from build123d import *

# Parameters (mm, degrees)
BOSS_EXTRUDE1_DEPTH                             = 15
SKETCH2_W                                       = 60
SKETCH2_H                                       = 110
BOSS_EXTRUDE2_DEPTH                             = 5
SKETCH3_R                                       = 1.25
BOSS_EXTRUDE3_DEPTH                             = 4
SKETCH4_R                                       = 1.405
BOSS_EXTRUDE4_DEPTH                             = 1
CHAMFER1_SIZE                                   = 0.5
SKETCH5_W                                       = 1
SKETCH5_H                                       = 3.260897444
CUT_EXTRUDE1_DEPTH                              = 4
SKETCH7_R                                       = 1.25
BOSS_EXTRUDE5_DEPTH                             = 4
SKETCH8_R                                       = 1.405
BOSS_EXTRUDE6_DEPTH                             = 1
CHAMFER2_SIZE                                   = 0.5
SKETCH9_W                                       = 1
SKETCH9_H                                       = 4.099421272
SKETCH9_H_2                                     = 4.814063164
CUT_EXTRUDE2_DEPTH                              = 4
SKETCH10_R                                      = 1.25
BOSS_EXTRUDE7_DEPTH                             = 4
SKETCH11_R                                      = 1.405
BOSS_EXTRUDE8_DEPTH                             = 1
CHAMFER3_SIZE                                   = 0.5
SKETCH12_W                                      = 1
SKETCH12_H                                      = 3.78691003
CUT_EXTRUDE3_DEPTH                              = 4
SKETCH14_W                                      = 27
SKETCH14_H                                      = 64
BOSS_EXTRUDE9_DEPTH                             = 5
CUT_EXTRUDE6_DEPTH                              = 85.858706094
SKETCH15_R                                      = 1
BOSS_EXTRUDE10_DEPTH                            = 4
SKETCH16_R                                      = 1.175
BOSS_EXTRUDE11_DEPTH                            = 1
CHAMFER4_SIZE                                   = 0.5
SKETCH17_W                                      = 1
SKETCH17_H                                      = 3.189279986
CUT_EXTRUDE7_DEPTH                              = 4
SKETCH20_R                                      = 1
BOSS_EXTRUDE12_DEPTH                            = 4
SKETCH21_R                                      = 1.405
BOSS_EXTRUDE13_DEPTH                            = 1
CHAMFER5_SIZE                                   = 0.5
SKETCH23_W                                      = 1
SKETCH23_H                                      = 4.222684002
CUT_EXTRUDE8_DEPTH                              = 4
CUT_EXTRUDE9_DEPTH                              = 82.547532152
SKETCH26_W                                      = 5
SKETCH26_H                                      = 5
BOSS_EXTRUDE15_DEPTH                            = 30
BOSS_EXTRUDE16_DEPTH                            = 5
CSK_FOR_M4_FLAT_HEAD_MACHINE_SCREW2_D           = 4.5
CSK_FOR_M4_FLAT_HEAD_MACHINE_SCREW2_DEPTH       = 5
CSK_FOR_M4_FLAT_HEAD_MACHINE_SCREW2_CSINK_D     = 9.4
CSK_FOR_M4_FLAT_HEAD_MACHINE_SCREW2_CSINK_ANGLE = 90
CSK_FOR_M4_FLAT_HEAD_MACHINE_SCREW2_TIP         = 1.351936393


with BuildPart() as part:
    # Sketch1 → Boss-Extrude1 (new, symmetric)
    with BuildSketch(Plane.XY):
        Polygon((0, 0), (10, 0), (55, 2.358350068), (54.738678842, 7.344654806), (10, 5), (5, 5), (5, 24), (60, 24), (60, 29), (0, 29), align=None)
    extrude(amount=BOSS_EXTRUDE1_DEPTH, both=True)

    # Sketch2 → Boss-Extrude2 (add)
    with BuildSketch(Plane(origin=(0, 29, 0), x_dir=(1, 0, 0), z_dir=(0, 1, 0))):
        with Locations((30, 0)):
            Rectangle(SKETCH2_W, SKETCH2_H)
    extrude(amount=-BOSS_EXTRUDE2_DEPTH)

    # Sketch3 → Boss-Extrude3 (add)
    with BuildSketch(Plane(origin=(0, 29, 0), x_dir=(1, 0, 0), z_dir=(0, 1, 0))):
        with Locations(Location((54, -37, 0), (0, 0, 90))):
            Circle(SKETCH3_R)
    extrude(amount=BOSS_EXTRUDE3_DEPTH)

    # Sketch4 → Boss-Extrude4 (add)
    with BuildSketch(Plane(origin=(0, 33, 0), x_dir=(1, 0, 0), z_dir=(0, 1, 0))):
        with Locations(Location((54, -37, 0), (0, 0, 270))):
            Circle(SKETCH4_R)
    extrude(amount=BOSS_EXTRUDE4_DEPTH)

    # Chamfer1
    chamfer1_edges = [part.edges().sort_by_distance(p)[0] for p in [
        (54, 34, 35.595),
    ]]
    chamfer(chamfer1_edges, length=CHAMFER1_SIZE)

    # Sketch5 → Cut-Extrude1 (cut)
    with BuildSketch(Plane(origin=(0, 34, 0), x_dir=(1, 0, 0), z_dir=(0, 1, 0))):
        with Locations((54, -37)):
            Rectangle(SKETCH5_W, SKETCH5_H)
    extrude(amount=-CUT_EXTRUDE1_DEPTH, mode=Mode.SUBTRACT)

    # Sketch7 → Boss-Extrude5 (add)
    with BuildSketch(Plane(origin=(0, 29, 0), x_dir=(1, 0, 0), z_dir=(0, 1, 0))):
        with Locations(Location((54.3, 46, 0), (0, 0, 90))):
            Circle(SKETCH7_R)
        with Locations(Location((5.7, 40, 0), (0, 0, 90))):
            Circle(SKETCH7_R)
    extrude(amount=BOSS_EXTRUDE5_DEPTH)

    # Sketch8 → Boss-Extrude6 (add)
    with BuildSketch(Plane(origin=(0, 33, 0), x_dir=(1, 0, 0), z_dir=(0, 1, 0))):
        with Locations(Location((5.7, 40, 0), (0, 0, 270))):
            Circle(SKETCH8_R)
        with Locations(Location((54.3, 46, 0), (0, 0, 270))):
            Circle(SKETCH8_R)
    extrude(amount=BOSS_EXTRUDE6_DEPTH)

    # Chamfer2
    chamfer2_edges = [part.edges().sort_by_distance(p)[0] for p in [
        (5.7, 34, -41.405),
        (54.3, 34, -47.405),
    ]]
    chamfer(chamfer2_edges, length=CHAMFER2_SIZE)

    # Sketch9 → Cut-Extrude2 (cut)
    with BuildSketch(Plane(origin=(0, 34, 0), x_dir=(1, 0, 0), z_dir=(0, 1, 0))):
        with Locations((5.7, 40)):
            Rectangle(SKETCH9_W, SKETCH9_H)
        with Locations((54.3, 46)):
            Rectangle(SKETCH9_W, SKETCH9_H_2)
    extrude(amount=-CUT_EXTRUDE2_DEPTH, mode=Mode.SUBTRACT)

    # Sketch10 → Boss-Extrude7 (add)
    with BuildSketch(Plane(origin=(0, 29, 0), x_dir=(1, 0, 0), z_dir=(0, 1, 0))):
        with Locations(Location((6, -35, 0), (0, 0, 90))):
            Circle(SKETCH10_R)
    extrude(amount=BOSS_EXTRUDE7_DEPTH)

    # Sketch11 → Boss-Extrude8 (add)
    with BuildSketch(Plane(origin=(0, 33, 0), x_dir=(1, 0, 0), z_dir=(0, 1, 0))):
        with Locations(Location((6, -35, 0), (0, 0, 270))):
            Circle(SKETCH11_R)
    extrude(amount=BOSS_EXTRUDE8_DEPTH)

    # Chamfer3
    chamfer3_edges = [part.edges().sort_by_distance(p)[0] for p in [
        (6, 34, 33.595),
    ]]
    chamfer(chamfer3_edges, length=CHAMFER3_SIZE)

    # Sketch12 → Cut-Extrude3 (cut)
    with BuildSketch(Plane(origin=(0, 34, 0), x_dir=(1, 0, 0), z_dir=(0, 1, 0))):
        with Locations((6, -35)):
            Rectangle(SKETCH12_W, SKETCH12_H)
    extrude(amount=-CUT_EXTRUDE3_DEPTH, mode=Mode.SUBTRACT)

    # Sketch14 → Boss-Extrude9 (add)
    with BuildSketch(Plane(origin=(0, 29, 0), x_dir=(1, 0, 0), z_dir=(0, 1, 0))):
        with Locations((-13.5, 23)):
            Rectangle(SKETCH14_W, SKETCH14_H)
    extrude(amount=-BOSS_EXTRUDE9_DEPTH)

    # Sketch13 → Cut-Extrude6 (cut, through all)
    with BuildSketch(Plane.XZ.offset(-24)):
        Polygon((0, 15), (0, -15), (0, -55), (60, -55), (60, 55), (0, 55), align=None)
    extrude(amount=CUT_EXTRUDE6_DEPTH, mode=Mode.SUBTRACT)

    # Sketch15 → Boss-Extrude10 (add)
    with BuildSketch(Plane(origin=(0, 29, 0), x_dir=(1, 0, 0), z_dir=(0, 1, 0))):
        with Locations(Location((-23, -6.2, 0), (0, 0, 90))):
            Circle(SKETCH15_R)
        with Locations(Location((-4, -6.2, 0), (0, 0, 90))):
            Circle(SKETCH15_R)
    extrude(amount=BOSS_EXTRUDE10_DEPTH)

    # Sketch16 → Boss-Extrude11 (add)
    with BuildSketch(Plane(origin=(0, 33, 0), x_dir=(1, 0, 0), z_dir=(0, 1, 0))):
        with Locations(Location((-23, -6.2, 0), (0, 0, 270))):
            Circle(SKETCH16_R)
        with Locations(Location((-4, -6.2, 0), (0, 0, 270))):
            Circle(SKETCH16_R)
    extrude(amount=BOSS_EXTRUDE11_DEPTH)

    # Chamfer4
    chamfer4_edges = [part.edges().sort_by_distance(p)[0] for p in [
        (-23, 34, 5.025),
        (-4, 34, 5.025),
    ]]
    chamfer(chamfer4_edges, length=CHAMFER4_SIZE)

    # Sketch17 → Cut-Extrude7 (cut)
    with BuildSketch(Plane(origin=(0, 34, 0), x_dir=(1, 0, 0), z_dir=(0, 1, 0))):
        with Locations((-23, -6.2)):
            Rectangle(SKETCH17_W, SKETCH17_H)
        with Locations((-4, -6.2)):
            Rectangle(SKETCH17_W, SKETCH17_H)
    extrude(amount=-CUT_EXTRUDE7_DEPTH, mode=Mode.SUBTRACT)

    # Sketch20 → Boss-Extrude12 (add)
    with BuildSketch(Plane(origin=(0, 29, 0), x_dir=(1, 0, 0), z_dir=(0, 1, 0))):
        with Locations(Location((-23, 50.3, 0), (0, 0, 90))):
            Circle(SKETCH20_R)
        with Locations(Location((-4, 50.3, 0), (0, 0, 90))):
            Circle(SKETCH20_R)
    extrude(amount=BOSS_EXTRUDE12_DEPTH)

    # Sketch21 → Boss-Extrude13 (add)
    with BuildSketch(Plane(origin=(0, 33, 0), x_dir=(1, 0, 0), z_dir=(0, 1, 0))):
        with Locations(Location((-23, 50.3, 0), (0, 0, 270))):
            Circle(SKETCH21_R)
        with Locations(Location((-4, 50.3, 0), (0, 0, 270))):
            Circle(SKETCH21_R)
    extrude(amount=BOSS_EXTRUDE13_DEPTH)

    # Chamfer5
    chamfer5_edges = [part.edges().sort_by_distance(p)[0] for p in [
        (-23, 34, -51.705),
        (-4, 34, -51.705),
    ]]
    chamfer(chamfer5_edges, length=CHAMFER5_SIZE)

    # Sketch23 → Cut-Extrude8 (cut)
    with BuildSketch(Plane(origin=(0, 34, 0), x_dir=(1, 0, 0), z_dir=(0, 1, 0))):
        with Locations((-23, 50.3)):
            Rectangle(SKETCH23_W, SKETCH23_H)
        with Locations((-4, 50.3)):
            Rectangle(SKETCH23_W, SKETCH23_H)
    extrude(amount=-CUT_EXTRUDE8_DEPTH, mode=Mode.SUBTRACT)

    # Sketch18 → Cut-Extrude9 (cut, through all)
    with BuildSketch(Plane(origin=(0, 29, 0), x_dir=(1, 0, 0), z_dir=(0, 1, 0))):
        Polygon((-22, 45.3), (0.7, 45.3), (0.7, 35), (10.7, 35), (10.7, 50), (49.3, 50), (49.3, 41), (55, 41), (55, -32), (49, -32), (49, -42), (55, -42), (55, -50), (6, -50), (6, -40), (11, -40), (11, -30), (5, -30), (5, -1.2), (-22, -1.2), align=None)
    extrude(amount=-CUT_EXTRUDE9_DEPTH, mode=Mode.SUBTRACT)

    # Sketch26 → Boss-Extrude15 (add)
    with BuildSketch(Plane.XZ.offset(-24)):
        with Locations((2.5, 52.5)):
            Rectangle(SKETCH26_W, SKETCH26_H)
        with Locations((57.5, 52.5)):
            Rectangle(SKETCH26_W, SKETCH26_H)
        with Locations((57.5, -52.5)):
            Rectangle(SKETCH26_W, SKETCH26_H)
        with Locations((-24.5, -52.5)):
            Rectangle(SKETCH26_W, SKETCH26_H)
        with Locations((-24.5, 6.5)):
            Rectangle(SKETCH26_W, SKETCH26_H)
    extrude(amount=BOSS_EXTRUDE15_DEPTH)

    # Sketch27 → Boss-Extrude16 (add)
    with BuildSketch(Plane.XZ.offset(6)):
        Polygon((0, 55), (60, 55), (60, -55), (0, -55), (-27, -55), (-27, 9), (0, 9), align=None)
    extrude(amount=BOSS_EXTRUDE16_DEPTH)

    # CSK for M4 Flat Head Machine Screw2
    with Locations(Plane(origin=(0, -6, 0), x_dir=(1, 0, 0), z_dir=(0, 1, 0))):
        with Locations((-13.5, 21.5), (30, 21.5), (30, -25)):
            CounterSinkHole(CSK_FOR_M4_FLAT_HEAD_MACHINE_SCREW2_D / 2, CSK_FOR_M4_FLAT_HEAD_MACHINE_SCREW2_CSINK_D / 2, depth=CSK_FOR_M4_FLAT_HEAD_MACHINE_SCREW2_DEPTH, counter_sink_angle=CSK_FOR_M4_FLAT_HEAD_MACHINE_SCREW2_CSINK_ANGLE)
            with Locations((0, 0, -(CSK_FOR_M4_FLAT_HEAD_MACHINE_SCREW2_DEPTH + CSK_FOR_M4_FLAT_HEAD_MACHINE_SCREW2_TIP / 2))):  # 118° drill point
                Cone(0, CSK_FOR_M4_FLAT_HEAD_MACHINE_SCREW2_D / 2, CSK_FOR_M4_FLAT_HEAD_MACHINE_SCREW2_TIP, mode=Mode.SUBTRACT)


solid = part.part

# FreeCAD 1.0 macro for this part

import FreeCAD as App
import Part
import Sketcher
from FreeCAD import Vector
Q = App.Units.Quantity


def edges_at(feature, points):
    """Names of the edges that pass closest to the given points."""
    edges = feature.Shape.Edges
    near = lambda p: min(range(len(edges)), key=lambda i: edges[i].distToShape(Part.Vertex(*p))[0])
    return sorted({f"Edge{near(p) + 1}" for p in points})


def add_polygon(sketch, points):
    """Adds a closed chain of lines whose ends are joined by coincident constraints."""
    first, n = sketch.GeometryCount, len(points)
    for a, b in zip(points, points[1:] + points[:1]):
        sketch.addGeometry(Part.LineSegment(App.Vector(*a, 0), App.Vector(*b, 0)), False)
    for i in range(n):
        sketch.addConstraint(Sketcher.Constraint("Coincident", first + i, 2, first + (i + 1) % n, 1))

doc = App.newDocument("Part")
body = doc.addObject("PartDesign::Body", "Body")

# Sketch on XY plane
sketch1 = body.newObject("Sketcher::SketchObject", "Sketch")
sketch1.AttachmentSupport = (doc.getObject("XY_Plane"), [""])
sketch1.MapMode = "FlatFace"
add_polygon(sketch1, [(0, 0), (10, 0), (55, 2.35835), (54.738679, 7.344655), (10, 5), (5, 5), (5, 24), (60, 24), (60, 29), (0, 29)])  # lines 0-9
sketch1.addConstraint([
    Sketcher.Constraint("Horizontal", 0),
    Sketcher.Constraint("Horizontal", 4),
    Sketcher.Constraint("Vertical", 5),
    Sketcher.Constraint("Horizontal", 6),
    Sketcher.Constraint("Vertical", 7),
    Sketcher.Constraint("Horizontal", 8),
    Sketcher.Constraint("Vertical", 9),
    Sketcher.Constraint("Coincident", 9, 2, -1, 1),
    Sketcher.Constraint("Perpendicular", 1, 2),
    Sketcher.Constraint("Perpendicular", 2, 3),
    Sketcher.Constraint("Vertical", 0, 2, 3, 2),
    Sketcher.Constraint("Equal", 4, 7),
    Sketcher.Constraint("DistanceX", 0, 1, 0, 2, 10.0),
    Sketcher.Constraint("DistanceX", 4, 2, 4, 1, 5.0),
    Sketcher.Constraint("DistanceX", 6, 1, 6, 2, 55.0),
    Sketcher.Constraint("DistanceY", 5, 1, 5, 2, 19.0),
    Sketcher.Constraint("DistanceY", 9, 2, 9, 1, 29.0),
    Sketcher.Constraint("Angle", 1, Q("3 deg")),
    Sketcher.Constraint("DistanceX", -1, 1, 1, 2, 55.0),
])
pad1 = body.newObject("PartDesign::Pad", "Pad")
pad1.Profile = sketch1
pad1.Length = 30
pad1.Midplane = True

# Sketch on XZ plane
sketch2 = body.newObject("Sketcher::SketchObject", "Sketch001")
sketch2.AttachmentSupport = (doc.getObject("XZ_Plane"), [""])
sketch2.MapMode = "FlatFace"
sketch2.AttachmentOffset = App.Placement(Vector(0, 0, -29), App.Rotation())
add_polygon(sketch2, [(0, -55), (0, 55), (60, 55), (60, -55)])  # lines 0-3
sketch2.addConstraint([
    Sketcher.Constraint("Vertical", 0),
    Sketcher.Constraint("Horizontal", 1),
    Sketcher.Constraint("Vertical", 2),
    Sketcher.Constraint("Horizontal", 3),
    Sketcher.Constraint("Symmetric", 0, 2, 3, 2, -1, 1),
    Sketcher.Constraint("DistanceX", 1, 1, 1, 2, 60.0),
    Sketcher.Constraint("DistanceY", 0, 1, 0, 2, 110.0),
])
pad2 = body.newObject("PartDesign::Pad", "Pad001")
pad2.Profile = sketch2
pad2.Length = 5

# Sketch on XZ plane
sketch3 = body.newObject("Sketcher::SketchObject", "Sketch002")
sketch3.AttachmentSupport = (doc.getObject("XZ_Plane"), [""])
sketch3.MapMode = "FlatFace"
sketch3.AttachmentOffset = App.Placement(Vector(0, 0, -29), App.Rotation())
sketch3.addGeometry(Part.Circle(Vector(54, 37, 0), Vector(0, 0, 1), 1.25), False)
sketch3.addConstraint([
    Sketcher.Constraint("Diameter", 0, 2.5),
    Sketcher.Constraint("DistanceX", -1, 1, 0, 3, 54.0),
    Sketcher.Constraint("DistanceY", -1, 1, 0, 3, 37.0),
])
pad3 = body.newObject("PartDesign::Pad", "Pad002")
pad3.Profile = sketch3
pad3.Length = 4
pad3.Reversed = True

# Sketch on XZ plane
sketch4 = body.newObject("Sketcher::SketchObject", "Sketch003")
sketch4.AttachmentSupport = (doc.getObject("XZ_Plane"), [""])
sketch4.MapMode = "FlatFace"
sketch4.AttachmentOffset = App.Placement(Vector(0, 0, -33), App.Rotation())
sketch4.addGeometry(Part.Circle(Vector(54, 37, 0), Vector(0, 0, 1), 1.405), False)
sketch4.addConstraint([
    Sketcher.Constraint("Diameter", 0, 2.81),
    Sketcher.Constraint("DistanceX", -1, 1, 0, 3, 54.0),
    Sketcher.Constraint("DistanceY", -1, 1, 0, 3, 37.0),
])
pad4 = body.newObject("PartDesign::Pad", "Pad003")
pad4.Profile = sketch4
pad4.Length = 1
pad4.Reversed = True
doc.recompute()

chamfer = body.newObject("PartDesign::Chamfer", "Chamfer")
chamfer.Base = (pad4, edges_at(pad4, [(54, 34, 35.595)]))
chamfer.Size = 0.5

# Sketch on XZ plane
sketch5 = body.newObject("Sketcher::SketchObject", "Sketch004")
sketch5.AttachmentSupport = (doc.getObject("XZ_Plane"), [""])
sketch5.MapMode = "FlatFace"
sketch5.AttachmentOffset = App.Placement(Vector(0, 0, -34), App.Rotation())
add_polygon(sketch5, [(53.5, 35.369551), (53.5, 38.630449), (54.5, 38.630449), (54.5, 35.369551)])  # lines 0-3
sketch5.addConstraint([
    Sketcher.Constraint("Vertical", 0),
    Sketcher.Constraint("Horizontal", 1),
    Sketcher.Constraint("Vertical", 2),
    Sketcher.Constraint("Horizontal", 3),
    Sketcher.Constraint("DistanceX", 1, 1, 1, 2, 1.0),
    Sketcher.Constraint("DistanceX", -1, 1, 0, 2, 53.5),
    Sketcher.Constraint("DistanceY", 0, 1, 0, 2, 3.260897),
    Sketcher.Constraint("DistanceY", -1, 1, 0, 2, 38.630449),
])
pocket1 = body.newObject("PartDesign::Pocket", "Pocket")
pocket1.Profile = sketch5
pocket1.Length = 4
pocket1.Reversed = True

# Sketch on XZ plane
sketch6 = body.newObject("Sketcher::SketchObject", "Sketch005")
sketch6.AttachmentSupport = (doc.getObject("XZ_Plane"), [""])
sketch6.MapMode = "FlatFace"
sketch6.AttachmentOffset = App.Placement(Vector(0, 0, -29), App.Rotation())
sketch6.addGeometry([
    Part.Circle(Vector(54.3, -46, 0), Vector(0, 0, 1), 1.25),
    Part.Circle(Vector(5.7, -40, 0), Vector(0, 0, 1), 1.25),
], False)
sketch6.addConstraint([
    Sketcher.Constraint("Equal", 0, 1),
    Sketcher.Constraint("Diameter", 0, 2.5),
    Sketcher.Constraint("DistanceY", 0, 3, -1, 1, 46.0),
    Sketcher.Constraint("DistanceY", 1, 3, -1, 1, 40.0),
    Sketcher.Constraint("DistanceX", -1, 1, 0, 3, 54.3),
    Sketcher.Constraint("DistanceX", -1, 1, 1, 3, 5.7),
])
pad5 = body.newObject("PartDesign::Pad", "Pad004")
pad5.Profile = sketch6
pad5.Length = 4
pad5.Reversed = True

# Sketch on XZ plane
sketch7 = body.newObject("Sketcher::SketchObject", "Sketch006")
sketch7.AttachmentSupport = (doc.getObject("XZ_Plane"), [""])
sketch7.MapMode = "FlatFace"
sketch7.AttachmentOffset = App.Placement(Vector(0, 0, -33), App.Rotation())
sketch7.addGeometry([
    Part.Circle(Vector(5.7, -40, 0), Vector(0, 0, 1), 1.405),
    Part.Circle(Vector(54.3, -46, 0), Vector(0, 0, 1), 1.405),
], False)
sketch7.addConstraint([
    Sketcher.Constraint("Equal", 0, 1),
    Sketcher.Constraint("Diameter", 0, 2.81),
    Sketcher.Constraint("DistanceY", 0, 3, -1, 1, 40.0),
    Sketcher.Constraint("DistanceY", 1, 3, -1, 1, 46.0),
    Sketcher.Constraint("DistanceX", -1, 1, 0, 3, 5.7),
    Sketcher.Constraint("DistanceX", -1, 1, 1, 3, 54.3),
])
pad6 = body.newObject("PartDesign::Pad", "Pad005")
pad6.Profile = sketch7
pad6.Length = 1
pad6.Reversed = True
doc.recompute()

chamfer2 = body.newObject("PartDesign::Chamfer", "Chamfer001")
chamfer2.Base = (pad6, edges_at(pad6, [(5.7, 34, -41.405), (54.3, 34, -47.405)]))
chamfer2.Size = 0.5

# Sketch on XZ plane
sketch8 = body.newObject("Sketcher::SketchObject", "Sketch007")
sketch8.AttachmentSupport = (doc.getObject("XZ_Plane"), [""])
sketch8.MapMode = "FlatFace"
sketch8.AttachmentOffset = App.Placement(Vector(0, 0, -34), App.Rotation())
add_polygon(sketch8, [(5.2, -42.049711), (5.2, -37.950289), (6.2, -37.950289), (6.2, -42.049711)])  # lines 0-3
add_polygon(sketch8, [(53.8, -48.407032), (53.8, -43.592968), (54.8, -43.592968), (54.8, -48.407032)])  # lines 4-7
sketch8.addConstraint([
    Sketcher.Constraint("Vertical", 0),
    Sketcher.Constraint("Horizontal", 1),
    Sketcher.Constraint("Vertical", 2),
    Sketcher.Constraint("Horizontal", 3),
    Sketcher.Constraint("Vertical", 4),
    Sketcher.Constraint("Horizontal", 5),
    Sketcher.Constraint("Vertical", 6),
    Sketcher.Constraint("Horizontal", 7),
    Sketcher.Constraint("Equal", 3, 5),
    Sketcher.Constraint("DistanceX", 1, 1, 1, 2, 1.0),
    Sketcher.Constraint("DistanceX", -1, 1, 0, 2, 5.2),
    Sketcher.Constraint("DistanceX", -1, 1, 4, 2, 53.8),
    Sketcher.Constraint("DistanceY", 0, 1, 0, 2, 4.099421),
    Sketcher.Constraint("DistanceY", 4, 1, 4, 2, 4.814063),
    Sketcher.Constraint("DistanceY", 0, 2, -1, 1, 37.950289),
    Sketcher.Constraint("DistanceY", 4, 2, -1, 1, 43.592968),
])
pocket2 = body.newObject("PartDesign::Pocket", "Pocket001")
pocket2.Profile = sketch8
pocket2.Length = 4
pocket2.Reversed = True

# Sketch on XZ plane
sketch9 = body.newObject("Sketcher::SketchObject", "Sketch008")
sketch9.AttachmentSupport = (doc.getObject("XZ_Plane"), [""])
sketch9.MapMode = "FlatFace"
sketch9.AttachmentOffset = App.Placement(Vector(0, 0, -29), App.Rotation())
sketch9.addGeometry(Part.Circle(Vector(6, 35, 0), Vector(0, 0, 1), 1.25), False)
sketch9.addConstraint([
    Sketcher.Constraint("Diameter", 0, 2.5),
    Sketcher.Constraint("DistanceX", -1, 1, 0, 3, 6.0),
    Sketcher.Constraint("DistanceY", -1, 1, 0, 3, 35.0),
])
pad7 = body.newObject("PartDesign::Pad", "Pad006")
pad7.Profile = sketch9
pad7.Length = 4
pad7.Reversed = True

# Sketch on XZ plane
sketch10 = body.newObject("Sketcher::SketchObject", "Sketch009")
sketch10.AttachmentSupport = (doc.getObject("XZ_Plane"), [""])
sketch10.MapMode = "FlatFace"
sketch10.AttachmentOffset = App.Placement(Vector(0, 0, -33), App.Rotation())
sketch10.addGeometry(Part.Circle(Vector(6, 35, 0), Vector(0, 0, 1), 1.405), False)
sketch10.addConstraint([
    Sketcher.Constraint("Diameter", 0, 2.81),
    Sketcher.Constraint("DistanceX", -1, 1, 0, 3, 6.0),
    Sketcher.Constraint("DistanceY", -1, 1, 0, 3, 35.0),
])
pad8 = body.newObject("PartDesign::Pad", "Pad007")
pad8.Profile = sketch10
pad8.Length = 1
pad8.Reversed = True
doc.recompute()

chamfer3 = body.newObject("PartDesign::Chamfer", "Chamfer002")
chamfer3.Base = (pad8, edges_at(pad8, [(6, 34, 33.595)]))
chamfer3.Size = 0.5

# Sketch on XZ plane
sketch11 = body.newObject("Sketcher::SketchObject", "Sketch010")
sketch11.AttachmentSupport = (doc.getObject("XZ_Plane"), [""])
sketch11.MapMode = "FlatFace"
sketch11.AttachmentOffset = App.Placement(Vector(0, 0, -34), App.Rotation())
add_polygon(sketch11, [(5.5, 33.106545), (5.5, 36.893455), (6.5, 36.893455), (6.5, 33.106545)])  # lines 0-3
sketch11.addConstraint([
    Sketcher.Constraint("Vertical", 0),
    Sketcher.Constraint("Horizontal", 1),
    Sketcher.Constraint("Vertical", 2),
    Sketcher.Constraint("Horizontal", 3),
    Sketcher.Constraint("DistanceX", 1, 1, 1, 2, 1.0),
    Sketcher.Constraint("DistanceX", -1, 1, 0, 2, 5.5),
    Sketcher.Constraint("DistanceY", 0, 1, 0, 2, 3.78691),
    Sketcher.Constraint("DistanceY", -1, 1, 0, 2, 36.893455),
])
pocket3 = body.newObject("PartDesign::Pocket", "Pocket002")
pocket3.Profile = sketch11
pocket3.Length = 4
pocket3.Reversed = True

# Sketch on XZ plane
sketch12 = body.newObject("Sketcher::SketchObject", "Sketch011")
sketch12.AttachmentSupport = (doc.getObject("XZ_Plane"), [""])
sketch12.MapMode = "FlatFace"
sketch12.AttachmentOffset = App.Placement(Vector(0, 0, -29), App.Rotation())
add_polygon(sketch12, [(-27, -55), (-27, 9), (0, 9), (0, -55)])  # lines 0-3
sketch12.addConstraint([
    Sketcher.Constraint("Vertical", 0),
    Sketcher.Constraint("Horizontal", 1),
    Sketcher.Constraint("Vertical", 2),
    Sketcher.Constraint("Horizontal", 3),
    Sketcher.Constraint("PointOnObject", 1, 2, -2),
    Sketcher.Constraint("DistanceX", 1, 1, 1, 2, 27.0),
    Sketcher.Constraint("DistanceY", 0, 1, 0, 2, 64.0),
    Sketcher.Constraint("DistanceY", -1, 1, 0, 2, 9.0),
])
pad9 = body.newObject("PartDesign::Pad", "Pad008")
pad9.Profile = sketch12
pad9.Length = 5

# Sketch on XZ plane
sketch13 = body.newObject("Sketcher::SketchObject", "Sketch012")
sketch13.AttachmentSupport = (doc.getObject("XZ_Plane"), [""])
sketch13.MapMode = "FlatFace"
sketch13.AttachmentOffset = App.Placement(Vector(0, 0, -24), App.Rotation())
add_polygon(sketch13, [(0, -55), (60, -55), (60, 55), (0, 55)])  # lines 0-3
sketch13.addConstraint([
    Sketcher.Constraint("Horizontal", 0),
    Sketcher.Constraint("Vertical", 1),
    Sketcher.Constraint("Horizontal", 2),
    Sketcher.Constraint("Vertical", 3),
    Sketcher.Constraint("Symmetric", 2, 2, 3, 2, -1, 1),
    Sketcher.Constraint("DistanceX", 0, 1, 0, 2, 60.0),
    Sketcher.Constraint("DistanceY", 1, 1, 1, 2, 110.0),
])
pocket4 = body.newObject("PartDesign::Pocket", "Pocket003")
pocket4.Profile = sketch13
pocket4.Type = "ThroughAll"
pocket4.Reversed = True

# Sketch on XZ plane
sketch14 = body.newObject("Sketcher::SketchObject", "Sketch013")
sketch14.AttachmentSupport = (doc.getObject("XZ_Plane"), [""])
sketch14.MapMode = "FlatFace"
sketch14.AttachmentOffset = App.Placement(Vector(0, 0, -29), App.Rotation())
sketch14.addGeometry([
    Part.Circle(Vector(-23, 6.2, 0), Vector(0, 0, 1), 1),
    Part.Circle(Vector(-4, 6.2, 0), Vector(0, 0, 1), 1),
], False)
sketch14.addConstraint([
    Sketcher.Constraint("Equal", 0, 1),
    Sketcher.Constraint("Horizontal", 0, 3, 1, 3),
    Sketcher.Constraint("Diameter", 0, 2.0),
    Sketcher.Constraint("DistanceX", 0, 3, -1, 1, 23.0),
    Sketcher.Constraint("DistanceX", 1, 3, -1, 1, 4.0),
    Sketcher.Constraint("DistanceY", -1, 1, 0, 3, 6.2),
])
pad10 = body.newObject("PartDesign::Pad", "Pad009")
pad10.Profile = sketch14
pad10.Length = 4
pad10.Reversed = True

# Sketch on XZ plane
sketch15 = body.newObject("Sketcher::SketchObject", "Sketch014")
sketch15.AttachmentSupport = (doc.getObject("XZ_Plane"), [""])
sketch15.MapMode = "FlatFace"
sketch15.AttachmentOffset = App.Placement(Vector(0, 0, -33), App.Rotation())
sketch15.addGeometry([
    Part.Circle(Vector(-23, 6.2, 0), Vector(0, 0, 1), 1.175),
    Part.Circle(Vector(-4, 6.2, 0), Vector(0, 0, 1), 1.175),
], False)
sketch15.addConstraint([
    Sketcher.Constraint("Equal", 0, 1),
    Sketcher.Constraint("Horizontal", 0, 3, 1, 3),
    Sketcher.Constraint("Diameter", 0, 2.35),
    Sketcher.Constraint("DistanceX", 0, 3, -1, 1, 23.0),
    Sketcher.Constraint("DistanceX", 1, 3, -1, 1, 4.0),
    Sketcher.Constraint("DistanceY", -1, 1, 0, 3, 6.2),
])
pad11 = body.newObject("PartDesign::Pad", "Pad010")
pad11.Profile = sketch15
pad11.Length = 1
pad11.Reversed = True
doc.recompute()

chamfer4 = body.newObject("PartDesign::Chamfer", "Chamfer003")
chamfer4.Base = (pad11, edges_at(pad11, [(-23, 34, 5.025), (-4, 34, 5.025)]))
chamfer4.Size = 0.5

# Sketch on XZ plane
sketch16 = body.newObject("Sketcher::SketchObject", "Sketch015")
sketch16.AttachmentSupport = (doc.getObject("XZ_Plane"), [""])
sketch16.MapMode = "FlatFace"
sketch16.AttachmentOffset = App.Placement(Vector(0, 0, -34), App.Rotation())
add_polygon(sketch16, [(-23.5, 4.60536), (-23.5, 7.79464), (-22.5, 7.79464), (-22.5, 4.60536)])  # lines 0-3
add_polygon(sketch16, [(-4.5, 4.60536), (-4.5, 7.79464), (-3.5, 7.79464), (-3.5, 4.60536)])  # lines 4-7
sketch16.addConstraint([
    Sketcher.Constraint("Vertical", 0),
    Sketcher.Constraint("Horizontal", 1),
    Sketcher.Constraint("Vertical", 2),
    Sketcher.Constraint("Horizontal", 3),
    Sketcher.Constraint("Vertical", 4),
    Sketcher.Constraint("Horizontal", 5),
    Sketcher.Constraint("Vertical", 6),
    Sketcher.Constraint("Horizontal", 7),
    Sketcher.Constraint("Horizontal", 1, 2, 4, 2),
    Sketcher.Constraint("Horizontal", 3, 2, 6, 2),
    Sketcher.Constraint("Equal", 3, 5),
    Sketcher.Constraint("DistanceX", 1, 1, 1, 2, 1.0),
    Sketcher.Constraint("DistanceX", 1, 2, 4, 2, 18.0),
    Sketcher.Constraint("DistanceX", 0, 2, -1, 1, 23.5),
    Sketcher.Constraint("DistanceY", 0, 1, 0, 2, 3.18928),
    Sketcher.Constraint("DistanceY", -1, 1, 0, 2, 7.79464),
])
pocket5 = body.newObject("PartDesign::Pocket", "Pocket004")
pocket5.Profile = sketch16
pocket5.Length = 4
pocket5.Reversed = True

# Sketch on XZ plane
sketch17 = body.newObject("Sketcher::SketchObject", "Sketch016")
sketch17.AttachmentSupport = (doc.getObject("XZ_Plane"), [""])
sketch17.MapMode = "FlatFace"
sketch17.AttachmentOffset = App.Placement(Vector(0, 0, -29), App.Rotation())
sketch17.addGeometry([
    Part.Circle(Vector(-23, -50.3, 0), Vector(0, 0, 1), 1),
    Part.Circle(Vector(-4, -50.3, 0), Vector(0, 0, 1), 1),
], False)
sketch17.addConstraint([
    Sketcher.Constraint("Equal", 0, 1),
    Sketcher.Constraint("Horizontal", 0, 3, 1, 3),
    Sketcher.Constraint("Diameter", 0, 2.0),
    Sketcher.Constraint("DistanceX", 0, 3, -1, 1, 23.0),
    Sketcher.Constraint("DistanceX", 1, 3, -1, 1, 4.0),
    Sketcher.Constraint("DistanceY", 0, 3, -1, 1, 50.3),
])
pad12 = body.newObject("PartDesign::Pad", "Pad011")
pad12.Profile = sketch17
pad12.Length = 4
pad12.Reversed = True

# Sketch on XZ plane
sketch18 = body.newObject("Sketcher::SketchObject", "Sketch017")
sketch18.AttachmentSupport = (doc.getObject("XZ_Plane"), [""])
sketch18.MapMode = "FlatFace"
sketch18.AttachmentOffset = App.Placement(Vector(0, 0, -33), App.Rotation())
sketch18.addGeometry([
    Part.Circle(Vector(-23, -50.3, 0), Vector(0, 0, 1), 1.405),
    Part.Circle(Vector(-4, -50.3, 0), Vector(0, 0, 1), 1.405),
], False)
sketch18.addConstraint([
    Sketcher.Constraint("Equal", 0, 1),
    Sketcher.Constraint("Horizontal", 0, 3, 1, 3),
    Sketcher.Constraint("Diameter", 0, 2.81),
    Sketcher.Constraint("DistanceX", 0, 3, -1, 1, 23.0),
    Sketcher.Constraint("DistanceX", 1, 3, -1, 1, 4.0),
    Sketcher.Constraint("DistanceY", 0, 3, -1, 1, 50.3),
])
pad13 = body.newObject("PartDesign::Pad", "Pad012")
pad13.Profile = sketch18
pad13.Length = 1
pad13.Reversed = True
doc.recompute()

chamfer5 = body.newObject("PartDesign::Chamfer", "Chamfer004")
chamfer5.Base = (pad13, edges_at(pad13, [(-23, 34, -51.705), (-4, 34, -51.705)]))
chamfer5.Size = 0.5

# Sketch on XZ plane
sketch19 = body.newObject("Sketcher::SketchObject", "Sketch018")
sketch19.AttachmentSupport = (doc.getObject("XZ_Plane"), [""])
sketch19.MapMode = "FlatFace"
sketch19.AttachmentOffset = App.Placement(Vector(0, 0, -34), App.Rotation())
add_polygon(sketch19, [(-23.5, -52.411342), (-23.5, -48.188658), (-22.5, -48.188658), (-22.5, -52.411342)])  # lines 0-3
add_polygon(sketch19, [(-4.5, -52.411342), (-4.5, -48.188658), (-3.5, -48.188658), (-3.5, -52.411342)])  # lines 4-7
sketch19.addConstraint([
    Sketcher.Constraint("Vertical", 0),
    Sketcher.Constraint("Horizontal", 1),
    Sketcher.Constraint("Vertical", 2),
    Sketcher.Constraint("Horizontal", 3),
    Sketcher.Constraint("Vertical", 4),
    Sketcher.Constraint("Horizontal", 5),
    Sketcher.Constraint("Vertical", 6),
    Sketcher.Constraint("Horizontal", 7),
    Sketcher.Constraint("Horizontal", 1, 2, 4, 2),
    Sketcher.Constraint("Horizontal", 3, 2, 6, 2),
    Sketcher.Constraint("Equal", 3, 5),
    Sketcher.Constraint("DistanceX", 1, 1, 1, 2, 1.0),
    Sketcher.Constraint("DistanceX", 1, 2, 4, 2, 18.0),
    Sketcher.Constraint("DistanceX", 0, 2, -1, 1, 23.5),
    Sketcher.Constraint("DistanceY", 0, 1, 0, 2, 4.222684),
    Sketcher.Constraint("DistanceY", 0, 2, -1, 1, 48.188658),
])
pocket6 = body.newObject("PartDesign::Pocket", "Pocket005")
pocket6.Profile = sketch19
pocket6.Length = 4
pocket6.Reversed = True

# Sketch on XZ plane
sketch20 = body.newObject("Sketcher::SketchObject", "Sketch019")
sketch20.AttachmentSupport = (doc.getObject("XZ_Plane"), [""])
sketch20.MapMode = "FlatFace"
sketch20.AttachmentOffset = App.Placement(Vector(0, 0, -29), App.Rotation())
add_polygon(sketch20, [(0.7, -45.3), (-22, -45.3), (-22, 1.2), (5, 1.2), (5, 30), (11, 30), (11, 40), (6, 40), (6, 50), (55, 50), (55, 42), (49, 42), (49, 32), (55, 32), (55, -41), (49.3, -41), (49.3, -50), (10.7, -50), (10.7, -35), (0.7, -35)])  # lines 0-19
sketch20.addConstraint([
    Sketcher.Constraint("Horizontal", 0),
    Sketcher.Constraint("Vertical", 1),
    Sketcher.Constraint("Horizontal", 2),
    Sketcher.Constraint("Vertical", 3),
    Sketcher.Constraint("Horizontal", 4),
    Sketcher.Constraint("Vertical", 5),
    Sketcher.Constraint("Horizontal", 6),
    Sketcher.Constraint("Vertical", 7),
    Sketcher.Constraint("Horizontal", 8),
    Sketcher.Constraint("Vertical", 9),
    Sketcher.Constraint("Horizontal", 10),
    Sketcher.Constraint("Vertical", 11),
    Sketcher.Constraint("Horizontal", 12),
    Sketcher.Constraint("Vertical", 13),
    Sketcher.Constraint("Horizontal", 14),
    Sketcher.Constraint("Vertical", 15),
    Sketcher.Constraint("Horizontal", 16),
    Sketcher.Constraint("Vertical", 17),
    Sketcher.Constraint("Horizontal", 18),
    Sketcher.Constraint("Vertical", 19),
    Sketcher.Constraint("Vertical", 9, 2, 12, 2),
    Sketcher.Constraint("Equal", 4, 10),
    Sketcher.Constraint("Equal", 18, 5),
    Sketcher.Constraint("Equal", 5, 7),
    Sketcher.Constraint("Equal", 7, 11),
    Sketcher.Constraint("DistanceX", 2, 1, 2, 2, 27.0),
    Sketcher.Constraint("DistanceX", 4, 1, 4, 2, 6.0),
    Sketcher.Constraint("DistanceX", 6, 2, 6, 1, 5.0),
    Sketcher.Constraint("DistanceX", 8, 1, 8, 2, 49.0),
    Sketcher.Constraint("DistanceX", 18, 2, 18, 1, 10.0),
    Sketcher.Constraint("DistanceY", 9, 2, 9, 1, 8.0),
    Sketcher.Constraint("DistanceY", 13, 2, 13, 1, 73.0),
    Sketcher.Constraint("DistanceY", 15, 2, 15, 1, 9.0),
    Sketcher.Constraint("DistanceY", 17, 1, 17, 2, 15.0),
    Sketcher.Constraint("DistanceX", 0, 2, 0, 1, 22.7),
    Sketcher.Constraint("DistanceX", 14, 2, 14, 1, 5.7),
    Sketcher.Constraint("DistanceY", 1, 1, 1, 2, 46.5),
    Sketcher.Constraint("DistanceY", 3, 1, 3, 2, 28.8),
    Sketcher.Constraint("DistanceX", 0, 2, -1, 1, 22.0),
    Sketcher.Constraint("DistanceY", -1, 1, 3, 2, 30.0),
])
pocket7 = body.newObject("PartDesign::Pocket", "Pocket006")
pocket7.Profile = sketch20
pocket7.Type = "ThroughAll"
pocket7.Reversed = True

# Sketch on XZ plane
sketch21 = body.newObject("Sketcher::SketchObject", "Sketch020")
sketch21.AttachmentSupport = (doc.getObject("XZ_Plane"), [""])
sketch21.MapMode = "FlatFace"
sketch21.AttachmentOffset = App.Placement(Vector(0, 0, -24), App.Rotation())
add_polygon(sketch21, [(0, 55), (0, 50), (5, 50), (5, 55)])  # lines 0-3
add_polygon(sketch21, [(55, 55), (55, 50), (60, 50), (60, 55)])  # lines 4-7
add_polygon(sketch21, [(55, -50), (55, -55), (60, -55), (60, -50)])  # lines 8-11
add_polygon(sketch21, [(-27, -50), (-27, -55), (-22, -55), (-22, -50)])  # lines 12-15
add_polygon(sketch21, [(-27, 9), (-27, 4), (-22, 4), (-22, 9)])  # lines 16-19
sketch21.addConstraint([
    Sketcher.Constraint("Vertical", 0),
    Sketcher.Constraint("Horizontal", 1),
    Sketcher.Constraint("Vertical", 2),
    Sketcher.Constraint("Horizontal", 3),
    Sketcher.Constraint("Vertical", 4),
    Sketcher.Constraint("Horizontal", 5),
    Sketcher.Constraint("Vertical", 6),
    Sketcher.Constraint("Horizontal", 7),
    Sketcher.Constraint("Vertical", 8),
    Sketcher.Constraint("Horizontal", 9),
    Sketcher.Constraint("Vertical", 10),
    Sketcher.Constraint("Horizontal", 11),
    Sketcher.Constraint("Vertical", 12),
    Sketcher.Constraint("Horizontal", 13),
    Sketcher.Constraint("Vertical", 14),
    Sketcher.Constraint("Horizontal", 15),
    Sketcher.Constraint("Vertical", 16),
    Sketcher.Constraint("Horizontal", 17),
    Sketcher.Constraint("Vertical", 18),
    Sketcher.Constraint("Horizontal", 19),
    Sketcher.Constraint("Symmetric", 7, 2, 8, 2, -1),
    Sketcher.Constraint("Symmetric", 5, 2, 10, 2, -1),
    Sketcher.Constraint("PointOnObject", 0, 2, -2),
    Sketcher.Constraint("Horizontal", 1, 2, 4, 2),
    Sketcher.Constraint("Horizontal", 3, 2, 6, 2),
    Sketcher.Constraint("Horizontal", 9, 2, 12, 2),
    Sketcher.Constraint("Horizontal", 11, 2, 14, 2),
    Sketcher.Constraint("Vertical", 15, 2, 16, 2),
    Sketcher.Constraint("Vertical", 14, 2, 17, 2),
    Sketcher.Constraint("Equal", 3, 5),
    Sketcher.Constraint("Equal", 11, 13),
    Sketcher.Constraint("Equal", 19, 0),
    Sketcher.Constraint("Equal", 14, 16),
    Sketcher.Constraint("DistanceX", 1, 1, 1, 2, 5.0),
    Sketcher.Constraint("DistanceY", -1, 1, 0, 2, 50.0),
    Sketcher.Constraint("DistanceX", -1, 1, 4, 2, 55.0),
    Sketcher.Constraint("DistanceX", 12, 2, -1, 1, 27.0),
    Sketcher.Constraint("DistanceY", -1, 1, 16, 2, 4.0),
])
pad14 = body.newObject("PartDesign::Pad", "Pad013")
pad14.Profile = sketch21
pad14.Length = 30

# Sketch on XZ plane
sketch22 = body.newObject("Sketcher::SketchObject", "Sketch021")
sketch22.AttachmentSupport = (doc.getObject("XZ_Plane"), [""])
sketch22.MapMode = "FlatFace"
sketch22.AttachmentOffset = App.Placement(Vector(0, 0, 6), App.Rotation())
add_polygon(sketch22, [(60, 55), (0, 55), (0, 9), (-27, 9), (-27, -55), (60, -55)])  # lines 0-5
sketch22.addConstraint([
    Sketcher.Constraint("Horizontal", 0),
    Sketcher.Constraint("Vertical", 1),
    Sketcher.Constraint("Horizontal", 2),
    Sketcher.Constraint("Vertical", 3),
    Sketcher.Constraint("Horizontal", 4),
    Sketcher.Constraint("Vertical", 5),
    Sketcher.Constraint("PointOnObject", 0, 2, -2),
    Sketcher.Constraint("DistanceX", 0, 2, 0, 1, 60.0),
    Sketcher.Constraint("DistanceX", 2, 2, 2, 1, 27.0),
    Sketcher.Constraint("DistanceY", 1, 2, 1, 1, 46.0),
    Sketcher.Constraint("DistanceY", 3, 2, 3, 1, 64.0),
    Sketcher.Constraint("DistanceY", -1, 1, 0, 2, 55.0),
])
pad15 = body.newObject("PartDesign::Pad", "Pad014")
pad15.Profile = sketch22
pad15.Length = 5

# Sketch on XZ plane
sketch23 = body.newObject("Sketcher::SketchObject", "Sketch022")
sketch23.AttachmentSupport = (doc.getObject("XZ_Plane"), [""])
sketch23.MapMode = "FlatFace"
sketch23.AttachmentOffset = App.Placement(Vector(0, 0, 6), App.Rotation())
sketch23.addGeometry([
    Part.Circle(Vector(-13.5, -21.5, 0), Vector(0, 0, 1), 2.25),
    Part.Circle(Vector(30, -21.5, 0), Vector(0, 0, 1), 2.25),
    Part.Circle(Vector(30, 25, 0), Vector(0, 0, 1), 2.25),
], False)
sketch23.addConstraint([
    Sketcher.Constraint("Equal", 0, 1),
    Sketcher.Constraint("Equal", 1, 2),
    Sketcher.Constraint("Horizontal", 0, 3, 1, 3),
    Sketcher.Constraint("Vertical", 1, 3, 2, 3),
    Sketcher.Constraint("Diameter", 0, 4.5),
    Sketcher.Constraint("DistanceX", -1, 1, 1, 3, 30.0),
    Sketcher.Constraint("DistanceY", -1, 1, 2, 3, 25.0),
    Sketcher.Constraint("DistanceX", 0, 3, -1, 1, 13.5),
    Sketcher.Constraint("DistanceY", 0, 3, -1, 1, 21.5),
])
doc.recompute()
hole = body.newObject("PartDesign::Hole", "Hole")
hole.Profile = sketch23
hole.ThreadType = "None"
hole.Diameter = 4.5
hole.DepthType = "Dimension"
hole.Depth = 5
hole.DrillPoint = "Angled"
hole.DrillPointAngle = 118
hole.HoleCutType = "Countersink"
hole.HoleCutDiameter = 9.4
hole.HoleCutCountersinkAngle = 90
hole.Reversed = True

doc.recompute()
